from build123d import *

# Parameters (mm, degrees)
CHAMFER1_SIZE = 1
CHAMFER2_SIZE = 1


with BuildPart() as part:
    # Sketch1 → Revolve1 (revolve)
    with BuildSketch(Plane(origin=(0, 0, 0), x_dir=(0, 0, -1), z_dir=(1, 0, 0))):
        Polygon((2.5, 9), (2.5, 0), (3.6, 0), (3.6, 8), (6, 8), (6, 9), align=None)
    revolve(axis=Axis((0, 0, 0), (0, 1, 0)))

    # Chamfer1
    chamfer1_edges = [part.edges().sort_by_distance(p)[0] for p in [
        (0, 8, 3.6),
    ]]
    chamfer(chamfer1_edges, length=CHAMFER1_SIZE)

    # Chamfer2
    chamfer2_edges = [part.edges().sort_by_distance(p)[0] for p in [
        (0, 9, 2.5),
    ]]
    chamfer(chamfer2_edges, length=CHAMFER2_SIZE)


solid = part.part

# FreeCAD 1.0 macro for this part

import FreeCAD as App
import Part
import Sketcher

V = App.Vector
Q = App.Units.Quantity


def edges_at(feature, points):
    """Names of the edges that pass closest to the given points."""
    edges = feature.Shape.Edges
    near = lambda p: min(range(len(edges)), key=lambda i: edges[i].distToShape(Part.Vertex(*p))[0])
    return sorted({f"Edge{near(p) + 1}" for p in points})


def add_polygon(sketch, points):
    """Adds a closed chain of lines whose ends are joined by coincident constraints."""
    first, n = sketch.GeometryCount, len(points)
    for a, b in zip(points, points[1:] + points[:1]):
        sketch.addGeometry(Part.LineSegment(App.Vector(*a, 0), App.Vector(*b, 0)), False)
    for i in range(n):
        sketch.addConstraint(Sketcher.Constraint("Coincident", first + i, 2, first + (i + 1) % n, 1))

doc = App.newDocument("Part")
body = doc.addObject("PartDesign::Body", "Body")

# Sketch on YZ plane
sketch1 = body.newObject("Sketcher::SketchObject", "Sketch")
sketch1.AttachmentSupport = (doc.getObject("YZ_Plane"), [""])
sketch1.MapMode = "FlatFace"
add_polygon(sketch1, [(9, -2.5), (0, -2.5), (0, -3.6), (8, -3.6), (8, -6), (9, -6)])  # lines 0-5
sketch1.addConstraint([
    Sketcher.Constraint("Horizontal", 0),
    Sketcher.Constraint("Vertical", 1),
    Sketcher.Constraint("Horizontal", 2),
    Sketcher.Constraint("Vertical", 3),
    Sketcher.Constraint("Horizontal", 4),
    Sketcher.Constraint("Vertical", 5),
    Sketcher.Constraint("PointOnObject", 0, 2, -2),
    Sketcher.Constraint("DistanceX", 0, 2, 0, 1, Q("9 mm")),
    Sketcher.Constraint("DistanceX", 2, 1, 2, 2, Q("8 mm")),
    Sketcher.Constraint("DistanceY", 1, 2, 1, 1, Q("1.1 mm")),
    Sketcher.Constraint("DistanceY", 3, 2, 3, 1, Q("2.4 mm")),
    Sketcher.Constraint("DistanceY", 3, 2, -1, 1, Q("6 mm")),
])
revolution = body.newObject("PartDesign::Revolution", "Revolution")
revolution.Profile = sketch1
revolution.ReferenceAxis = (sketch1, ["H_Axis"])
revolution.Angle = 360
doc.recompute()

chamfer = body.newObject("PartDesign::Chamfer", "Chamfer")
chamfer.Base = (revolution, edges_at(revolution, [(0, 8, 3.6)]))
chamfer.Size = 1
doc.recompute()

chamfer2 = body.newObject("PartDesign::Chamfer", "Chamfer001")
chamfer2.Base = (chamfer, edges_at(chamfer, [(0, 9, 2.5)]))
chamfer2.Size = 1

doc.recompute()
